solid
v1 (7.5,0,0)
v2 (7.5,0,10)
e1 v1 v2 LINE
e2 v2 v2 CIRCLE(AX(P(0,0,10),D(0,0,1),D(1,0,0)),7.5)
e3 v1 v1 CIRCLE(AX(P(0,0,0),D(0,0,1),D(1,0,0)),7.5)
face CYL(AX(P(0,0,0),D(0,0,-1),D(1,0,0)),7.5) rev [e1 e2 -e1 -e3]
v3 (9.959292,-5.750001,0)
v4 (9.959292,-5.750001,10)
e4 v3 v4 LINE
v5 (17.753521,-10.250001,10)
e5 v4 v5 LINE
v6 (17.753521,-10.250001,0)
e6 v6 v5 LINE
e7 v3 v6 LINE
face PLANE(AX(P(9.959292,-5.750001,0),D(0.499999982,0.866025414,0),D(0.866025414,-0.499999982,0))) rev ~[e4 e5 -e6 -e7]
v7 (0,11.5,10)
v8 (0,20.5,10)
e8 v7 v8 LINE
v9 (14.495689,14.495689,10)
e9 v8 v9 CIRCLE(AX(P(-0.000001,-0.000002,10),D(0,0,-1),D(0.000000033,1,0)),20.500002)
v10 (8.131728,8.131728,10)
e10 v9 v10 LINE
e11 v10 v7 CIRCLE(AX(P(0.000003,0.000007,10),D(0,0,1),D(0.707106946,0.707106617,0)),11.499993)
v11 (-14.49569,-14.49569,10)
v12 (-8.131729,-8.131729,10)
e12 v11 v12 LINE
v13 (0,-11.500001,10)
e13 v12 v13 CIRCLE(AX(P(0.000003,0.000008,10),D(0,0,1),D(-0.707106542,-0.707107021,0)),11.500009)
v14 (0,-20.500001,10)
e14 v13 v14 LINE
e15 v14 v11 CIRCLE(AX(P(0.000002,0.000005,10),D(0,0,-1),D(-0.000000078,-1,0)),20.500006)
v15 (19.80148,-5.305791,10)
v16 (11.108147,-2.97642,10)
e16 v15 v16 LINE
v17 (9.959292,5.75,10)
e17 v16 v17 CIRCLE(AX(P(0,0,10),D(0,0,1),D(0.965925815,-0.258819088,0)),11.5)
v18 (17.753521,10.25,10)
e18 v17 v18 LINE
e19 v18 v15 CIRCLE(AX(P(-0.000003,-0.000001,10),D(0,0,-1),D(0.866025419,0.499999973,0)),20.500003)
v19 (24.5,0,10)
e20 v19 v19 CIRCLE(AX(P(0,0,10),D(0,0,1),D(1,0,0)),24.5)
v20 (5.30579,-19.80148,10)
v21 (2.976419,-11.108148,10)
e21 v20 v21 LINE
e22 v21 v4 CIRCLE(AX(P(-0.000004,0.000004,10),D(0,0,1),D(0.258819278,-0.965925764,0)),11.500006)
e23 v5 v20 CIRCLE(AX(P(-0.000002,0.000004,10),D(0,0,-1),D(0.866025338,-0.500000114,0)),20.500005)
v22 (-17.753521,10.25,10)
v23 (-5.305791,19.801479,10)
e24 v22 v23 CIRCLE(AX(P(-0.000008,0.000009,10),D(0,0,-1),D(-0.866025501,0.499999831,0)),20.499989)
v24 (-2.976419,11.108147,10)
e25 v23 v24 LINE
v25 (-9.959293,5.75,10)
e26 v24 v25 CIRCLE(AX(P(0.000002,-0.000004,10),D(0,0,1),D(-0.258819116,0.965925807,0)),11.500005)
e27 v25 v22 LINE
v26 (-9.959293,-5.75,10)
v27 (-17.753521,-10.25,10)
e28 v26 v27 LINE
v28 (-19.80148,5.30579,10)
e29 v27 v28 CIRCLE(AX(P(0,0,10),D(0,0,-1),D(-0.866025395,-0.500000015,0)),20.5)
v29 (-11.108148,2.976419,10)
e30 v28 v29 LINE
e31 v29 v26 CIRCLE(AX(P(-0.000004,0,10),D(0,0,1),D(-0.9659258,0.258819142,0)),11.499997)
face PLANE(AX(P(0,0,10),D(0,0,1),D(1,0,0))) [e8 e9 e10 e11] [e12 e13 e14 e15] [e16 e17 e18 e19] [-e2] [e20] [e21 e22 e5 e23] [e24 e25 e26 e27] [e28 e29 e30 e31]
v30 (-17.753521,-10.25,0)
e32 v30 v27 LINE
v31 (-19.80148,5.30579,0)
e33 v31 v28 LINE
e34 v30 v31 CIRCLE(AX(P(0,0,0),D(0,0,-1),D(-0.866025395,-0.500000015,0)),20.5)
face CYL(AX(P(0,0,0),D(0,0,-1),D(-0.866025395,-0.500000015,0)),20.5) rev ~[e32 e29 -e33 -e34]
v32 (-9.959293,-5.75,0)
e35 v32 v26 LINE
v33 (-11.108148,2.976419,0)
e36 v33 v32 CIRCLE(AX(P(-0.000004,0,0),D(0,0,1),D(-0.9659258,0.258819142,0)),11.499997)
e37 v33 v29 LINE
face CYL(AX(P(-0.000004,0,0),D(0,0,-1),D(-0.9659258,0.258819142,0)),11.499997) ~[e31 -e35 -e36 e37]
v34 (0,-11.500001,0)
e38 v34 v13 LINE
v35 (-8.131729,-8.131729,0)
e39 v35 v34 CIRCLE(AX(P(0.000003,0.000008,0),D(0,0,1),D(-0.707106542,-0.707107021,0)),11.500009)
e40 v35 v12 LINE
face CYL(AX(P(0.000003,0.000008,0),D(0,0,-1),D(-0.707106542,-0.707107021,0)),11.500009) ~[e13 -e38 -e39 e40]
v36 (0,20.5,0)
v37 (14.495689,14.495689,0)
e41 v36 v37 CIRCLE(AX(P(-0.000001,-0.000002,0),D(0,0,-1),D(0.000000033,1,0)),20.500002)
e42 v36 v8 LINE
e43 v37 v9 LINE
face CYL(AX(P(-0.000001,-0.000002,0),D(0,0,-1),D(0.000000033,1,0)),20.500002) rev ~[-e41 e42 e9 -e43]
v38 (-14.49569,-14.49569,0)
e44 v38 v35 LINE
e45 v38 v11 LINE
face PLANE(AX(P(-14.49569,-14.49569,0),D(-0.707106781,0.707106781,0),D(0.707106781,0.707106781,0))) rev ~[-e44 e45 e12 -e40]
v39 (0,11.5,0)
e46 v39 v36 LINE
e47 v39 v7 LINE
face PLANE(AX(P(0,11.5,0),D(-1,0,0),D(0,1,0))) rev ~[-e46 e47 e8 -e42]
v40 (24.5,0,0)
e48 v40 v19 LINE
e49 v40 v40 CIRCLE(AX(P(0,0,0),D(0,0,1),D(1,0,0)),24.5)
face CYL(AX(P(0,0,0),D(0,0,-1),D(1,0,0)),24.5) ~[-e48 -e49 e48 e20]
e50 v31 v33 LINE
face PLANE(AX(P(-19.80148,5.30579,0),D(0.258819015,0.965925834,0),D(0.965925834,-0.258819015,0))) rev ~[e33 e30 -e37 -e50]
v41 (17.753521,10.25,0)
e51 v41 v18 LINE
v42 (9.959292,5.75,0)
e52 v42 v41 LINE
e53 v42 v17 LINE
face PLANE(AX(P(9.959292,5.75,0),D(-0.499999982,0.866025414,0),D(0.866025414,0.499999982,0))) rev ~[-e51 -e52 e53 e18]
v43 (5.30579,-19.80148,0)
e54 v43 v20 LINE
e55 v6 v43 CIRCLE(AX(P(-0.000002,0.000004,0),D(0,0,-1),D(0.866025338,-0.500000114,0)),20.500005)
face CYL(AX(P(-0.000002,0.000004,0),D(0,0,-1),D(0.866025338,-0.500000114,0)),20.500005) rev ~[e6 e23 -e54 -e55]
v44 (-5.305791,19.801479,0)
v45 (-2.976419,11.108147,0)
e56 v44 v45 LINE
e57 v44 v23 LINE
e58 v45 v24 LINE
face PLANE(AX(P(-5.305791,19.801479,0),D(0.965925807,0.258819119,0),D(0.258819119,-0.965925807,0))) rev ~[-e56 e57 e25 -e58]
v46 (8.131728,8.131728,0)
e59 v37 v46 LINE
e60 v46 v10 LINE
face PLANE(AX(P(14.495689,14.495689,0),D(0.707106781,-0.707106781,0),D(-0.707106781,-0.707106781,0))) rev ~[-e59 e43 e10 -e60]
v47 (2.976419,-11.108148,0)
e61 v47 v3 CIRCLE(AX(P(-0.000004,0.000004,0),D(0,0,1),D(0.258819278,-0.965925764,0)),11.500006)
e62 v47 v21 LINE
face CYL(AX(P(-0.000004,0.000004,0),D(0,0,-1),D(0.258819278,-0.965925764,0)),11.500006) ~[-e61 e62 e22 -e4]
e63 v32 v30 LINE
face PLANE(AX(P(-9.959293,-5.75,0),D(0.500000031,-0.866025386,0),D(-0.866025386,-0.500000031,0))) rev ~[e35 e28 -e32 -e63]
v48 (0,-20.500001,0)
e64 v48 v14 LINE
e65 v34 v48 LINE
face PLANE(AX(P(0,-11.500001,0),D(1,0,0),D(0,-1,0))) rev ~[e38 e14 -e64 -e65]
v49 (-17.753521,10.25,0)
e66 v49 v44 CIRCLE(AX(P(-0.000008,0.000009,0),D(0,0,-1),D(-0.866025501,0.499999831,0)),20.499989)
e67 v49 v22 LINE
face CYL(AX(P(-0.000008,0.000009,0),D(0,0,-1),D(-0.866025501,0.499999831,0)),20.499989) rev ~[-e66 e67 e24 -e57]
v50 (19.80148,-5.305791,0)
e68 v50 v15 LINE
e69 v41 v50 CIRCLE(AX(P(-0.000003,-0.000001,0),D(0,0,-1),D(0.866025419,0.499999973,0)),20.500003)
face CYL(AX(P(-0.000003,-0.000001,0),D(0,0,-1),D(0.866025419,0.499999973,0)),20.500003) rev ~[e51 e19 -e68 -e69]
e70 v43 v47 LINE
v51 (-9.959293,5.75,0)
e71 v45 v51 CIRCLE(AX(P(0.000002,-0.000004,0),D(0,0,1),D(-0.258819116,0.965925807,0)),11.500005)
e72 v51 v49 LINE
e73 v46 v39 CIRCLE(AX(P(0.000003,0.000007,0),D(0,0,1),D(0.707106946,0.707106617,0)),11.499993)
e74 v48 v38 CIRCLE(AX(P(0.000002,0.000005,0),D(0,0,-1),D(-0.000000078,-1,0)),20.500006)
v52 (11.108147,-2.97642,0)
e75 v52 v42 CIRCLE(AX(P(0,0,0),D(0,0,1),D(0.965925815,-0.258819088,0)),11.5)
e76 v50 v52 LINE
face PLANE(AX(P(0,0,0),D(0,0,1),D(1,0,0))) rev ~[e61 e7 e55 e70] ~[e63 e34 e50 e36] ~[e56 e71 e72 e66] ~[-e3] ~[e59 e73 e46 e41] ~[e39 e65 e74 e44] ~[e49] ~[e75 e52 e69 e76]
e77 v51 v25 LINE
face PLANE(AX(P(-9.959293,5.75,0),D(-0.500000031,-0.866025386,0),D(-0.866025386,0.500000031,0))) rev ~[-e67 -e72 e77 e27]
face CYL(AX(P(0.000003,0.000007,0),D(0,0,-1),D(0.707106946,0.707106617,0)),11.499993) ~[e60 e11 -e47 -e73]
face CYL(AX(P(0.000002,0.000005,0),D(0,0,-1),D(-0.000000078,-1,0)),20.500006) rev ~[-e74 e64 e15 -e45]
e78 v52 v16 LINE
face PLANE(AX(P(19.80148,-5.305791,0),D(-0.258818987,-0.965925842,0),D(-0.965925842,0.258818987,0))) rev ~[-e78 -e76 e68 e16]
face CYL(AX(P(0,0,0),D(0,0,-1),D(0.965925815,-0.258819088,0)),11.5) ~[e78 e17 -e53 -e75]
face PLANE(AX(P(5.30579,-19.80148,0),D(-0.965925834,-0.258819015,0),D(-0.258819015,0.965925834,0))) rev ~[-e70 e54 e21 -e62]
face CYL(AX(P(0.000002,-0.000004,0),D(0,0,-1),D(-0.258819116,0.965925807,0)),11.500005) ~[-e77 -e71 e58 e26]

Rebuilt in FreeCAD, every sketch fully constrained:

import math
import FreeCAD as App
import Part
import Sketcher

V = App.Vector
Q = App.Units.Quantity

doc = App.newDocument("Part")
body = doc.addObject("PartDesign::Body", "Body")

# Sketch on XY plane
sketch1 = body.newObject("Sketcher::SketchObject", "Sketch")
sketch1.AttachmentSupport = (doc.getObject("XY_Plane"), [""])
sketch1.MapMode = "FlatFace"
sketch1.addGeometry([
    Part.Circle(V(0, 0, 0), V(0, 0, 1), 24),  # 0
    Part.ArcOfCircle(Part.Circle(V(0, 0, 0), V(0, 0, 1), 12), math.radians(-135), math.radians(-90)),  # 1
    Part.LineSegment(V(0, -12, 0), V(0, -21, 0)),  # 2
    Part.ArcOfCircle(Part.Circle(V(0, 0, 0), V(0, 0, 1), 21), math.radians(-135), math.radians(-90)),  # 3
    Part.LineSegment(V(-14, -14, 0), V(-8, -8, 0)),  # 4
    Part.ArcOfCircle(Part.Circle(V(0, 0, 0), V(0, 0, 1), 11), math.radians(165), math.radians(210)),  # 5
    Part.LineSegment(V(-10, -6, 0), V(-18, -10, 0)),  # 6
    Part.ArcOfCircle(Part.Circle(V(0, 0, 0), V(0, 0, 1), 20), math.radians(165), math.radians(210)),  # 7
    Part.LineSegment(V(-20, 5, 0), V(-11, 3, 0)),  # 8
    Part.ArcOfCircle(Part.Circle(V(0, 0, 0), V(0, 0, 1), 12), math.radians(-75), math.radians(-30)),  # 9
    Part.LineSegment(V(10, -6, 0), V(18, -10, 0)),  # 10
    Part.ArcOfCircle(Part.Circle(V(0, 0, 0), V(0, 0, 1), 21), math.radians(-75), math.radians(-30)),  # 11
    Part.LineSegment(V(5, -20, 0), V(3, -11, 0)),  # 12
    Part.ArcOfCircle(Part.Circle(V(0, 0, 0), V(0, 0, 1), 12), math.radians(105), math.radians(150)),  # 13
    Part.LineSegment(V(-10, 6, 0), V(-18, 10, 0)),  # 14
    Part.ArcOfCircle(Part.Circle(V(0, 0, 0), V(0, 0, 1), 20), math.radians(105), math.radians(150)),  # 15
    Part.LineSegment(V(-5, 20, 0), V(-3, 11, 0)),  # 16
    Part.Circle(V(0, 0, 0), V(0, 0, 1), 8),  # 17
    Part.ArcOfCircle(Part.Circle(V(0, 0, 0), V(0, 0, 1), 12), math.radians(-15), math.radians(30)),  # 18
    Part.LineSegment(V(10, 6, 0), V(18, 10, 0)),  # 19
    Part.ArcOfCircle(Part.Circle(V(0, 0, 0), V(0, 0, 1), 21), math.radians(-15), math.radians(30)),  # 20
    Part.LineSegment(V(20, -5, 0), V(11, -3, 0)),  # 21
    Part.ArcOfCircle(Part.Circle(V(0, 0, 0), V(0, 0, 1), 11), math.radians(45), math.radians(90)),  # 22
    Part.LineSegment(V(0, 12, 0), V(0, 20, 0)),  # 23
    Part.ArcOfCircle(Part.Circle(V(0, 0, 0), V(0, 0, 1), 21), math.radians(45), math.radians(90)),  # 24
    Part.LineSegment(V(14, 14, 0), V(8, 8, 0)),  # 25
], False)
sketch1.addConstraint([
    Sketcher.Constraint("Coincident", 1, 2, 2, 1),
    Sketcher.Constraint("Coincident", 2, 2, 3, 2),
    Sketcher.Constraint("Coincident", 3, 1, 4, 1),
    Sketcher.Constraint("Coincident", 4, 2, 1, 1),
    Sketcher.Constraint("Coincident", 5, 2, 6, 1),
    Sketcher.Constraint("Coincident", 6, 2, 7, 2),
    Sketcher.Constraint("Coincident", 7, 1, 8, 1),
    Sketcher.Constraint("Coincident", 8, 2, 5, 1),
    Sketcher.Constraint("Coincident", 9, 2, 10, 1),
    Sketcher.Constraint("Coincident", 10, 2, 11, 2),
    Sketcher.Constraint("Coincident", 11, 1, 12, 1),
    Sketcher.Constraint("Coincident", 12, 2, 9, 1),
    Sketcher.Constraint("Coincident", 13, 2, 14, 1),
    Sketcher.Constraint("Coincident", 14, 2, 15, 2),
    Sketcher.Constraint("Coincident", 15, 1, 16, 1),
    Sketcher.Constraint("Coincident", 16, 2, 13, 1),
    Sketcher.Constraint("Coincident", 18, 2, 19, 1),
    Sketcher.Constraint("Coincident", 19, 2, 20, 2),
    Sketcher.Constraint("Coincident", 20, 1, 21, 1),
    Sketcher.Constraint("Coincident", 21, 2, 18, 1),
    Sketcher.Constraint("Coincident", 22, 2, 23, 1),
    Sketcher.Constraint("Coincident", 23, 2, 24, 2),
    Sketcher.Constraint("Coincident", 24, 1, 25, 1),
    Sketcher.Constraint("Coincident", 25, 2, 22, 1),
    Sketcher.Constraint("Vertical", 2),
    Sketcher.Constraint("Vertical", 23),
    Sketcher.Constraint("Coincident", 0, 3, -1, 1),
    Sketcher.Constraint("Coincident", 1, 3, -1, 1),
    Sketcher.Constraint("Coincident", 3, 3, -1, 1),
    Sketcher.Constraint("Coincident", 5, 3, -1, 1),
    Sketcher.Constraint("Coincident", 7, 3, -1, 1),
    Sketcher.Constraint("Coincident", 9, 3, -1, 1),
    Sketcher.Constraint("Coincident", 11, 3, -1, 1),
    Sketcher.Constraint("Coincident", 13, 3, -1, 1),
    Sketcher.Constraint("Coincident", 17, 3, -1, 1),
    Sketcher.Constraint("Coincident", 18, 3, -1, 1),
    Sketcher.Constraint("Coincident", 20, 3, -1, 1),
    Sketcher.Constraint("Coincident", 22, 3, -1, 1),
    Sketcher.Constraint("Coincident", 24, 3, -1, 1),
    Sketcher.Constraint("Coincident", 15, 3, 3, 3),
    Sketcher.Constraint("Equal", 3, 11),
    Sketcher.Constraint("Equal", 9, 13),
    Sketcher.Constraint("Equal", 11, 20),
    Sketcher.Constraint("Equal", 20, 24),
    Sketcher.Constraint("Symmetric", 10, 2, 14, 2, -1, 1),
    Sketcher.Constraint("Symmetric", 5, 2, 18, 2, -1, 1),
    Sketcher.Constraint("Symmetric", 6, 2, 19, 2, -1, 1),
    Sketcher.Constraint("Symmetric", 1, 2, 22, 2, -1, 1),
    Sketcher.Constraint("Symmetric", 5, 2, 9, 2, -2),
    Sketcher.Constraint("PointOnObject", 1, 2, -2),
    Sketcher.Constraint("Parallel", 10, 14),
    Sketcher.Constraint("Parallel", 12, 16),
    Sketcher.Constraint("Parallel", 8, 21),
    Sketcher.Constraint("Parallel", 4, 25),
    Sketcher.Constraint("Horizontal", 6, 2, 10, 2),
    Sketcher.Constraint("Equal", 4, 6),
    Sketcher.Constraint("Diameter", 0, Q("49 mm")),
    Sketcher.Constraint("Diameter", 17, Q("15 mm")),
    Sketcher.Constraint("Radius", 7, Q("20.5 mm")),
    Sketcher.Constraint("Radius", 18, Q("11.5 mm")),
    Sketcher.Constraint("Angle", 4, Q("45 deg")),
    Sketcher.Constraint("Angle", 6, Q("-149.999998 deg")),
    Sketcher.Constraint("Angle", 8, Q("-14.999998 deg")),
    Sketcher.Constraint("Angle", 12, Q("104.999998 deg")),
    Sketcher.Constraint("DistanceY", 5, 2, 14, 2, Q("16 mm")),
    Sketcher.Constraint("DistanceX", 11, 1, 9, 2, Q("4.653502 mm")),
    Sketcher.Constraint("DistanceX", 13, 2, 15, 1, Q("4.653502 mm")),
    Sketcher.Constraint("DistanceX", 3, 1, -1, 1, Q("14.49569 mm")),
    Sketcher.Constraint("DistanceX", 7, 1, -1, 1, Q("19.80148 mm")),
    Sketcher.Constraint("DistanceX", -1, 1, 20, 1, Q("19.80148 mm")),
    Sketcher.Constraint("DistanceX", -1, 1, 24, 1, Q("14.495689 mm")),
])
pad1 = body.newObject("PartDesign::Pad", "Pad")
pad1.Profile = sketch1
pad1.Length = 10

doc.recompute()
